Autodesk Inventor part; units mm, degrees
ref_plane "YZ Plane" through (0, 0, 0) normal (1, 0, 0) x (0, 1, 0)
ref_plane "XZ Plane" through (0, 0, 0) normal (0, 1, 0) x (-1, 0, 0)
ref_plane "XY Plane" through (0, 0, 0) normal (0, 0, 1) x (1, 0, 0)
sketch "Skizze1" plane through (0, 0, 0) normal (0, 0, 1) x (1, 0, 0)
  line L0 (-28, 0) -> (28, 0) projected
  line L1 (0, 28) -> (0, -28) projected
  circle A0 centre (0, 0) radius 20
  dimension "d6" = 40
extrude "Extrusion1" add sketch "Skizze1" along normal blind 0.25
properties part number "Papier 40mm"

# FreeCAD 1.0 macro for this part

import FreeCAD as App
import Part
import Sketcher

V = App.Vector
Q = App.Units.Quantity

doc = App.newDocument("Part")
params = doc.addObject("Spreadsheet::Sheet", "Params")
for row, (alias, value) in enumerate([
    ("sketch1_diameter", "40 mm"),
    ("pad1_length", "0.25 mm"),
], start=1):
    params.set(f"A{row}", alias)
    params.set(f"B{row}", "=" + value)
    params.setAlias(f"B{row}", alias)

body = doc.addObject("PartDesign::Body", "Body")

sketch1 = body.newObject("Sketcher::SketchObject", "Sketch")
sketch1.AttachmentSupport = (doc.getObject("XY_Plane"), [""])
sketch1.MapMode = "FlatFace"
sketch1.addGeometry(Part.Circle(V(0, 0, 0), V(0, 0, 1), 20), False)
sketch1.addConstraint(Sketcher.Constraint("Coincident", 0, 3, -1, 1))
sketch1.addConstraint(Sketcher.Constraint("Diameter", 0, Q("40 mm")))
sketch1.setExpression("Constraints[1]", "Params.sketch1_diameter")
pad1 = body.newObject("PartDesign::Pad", "Pad")
pad1.Profile = sketch1
pad1.setExpression("Length", "Params.pad1_length")

doc.recompute()
